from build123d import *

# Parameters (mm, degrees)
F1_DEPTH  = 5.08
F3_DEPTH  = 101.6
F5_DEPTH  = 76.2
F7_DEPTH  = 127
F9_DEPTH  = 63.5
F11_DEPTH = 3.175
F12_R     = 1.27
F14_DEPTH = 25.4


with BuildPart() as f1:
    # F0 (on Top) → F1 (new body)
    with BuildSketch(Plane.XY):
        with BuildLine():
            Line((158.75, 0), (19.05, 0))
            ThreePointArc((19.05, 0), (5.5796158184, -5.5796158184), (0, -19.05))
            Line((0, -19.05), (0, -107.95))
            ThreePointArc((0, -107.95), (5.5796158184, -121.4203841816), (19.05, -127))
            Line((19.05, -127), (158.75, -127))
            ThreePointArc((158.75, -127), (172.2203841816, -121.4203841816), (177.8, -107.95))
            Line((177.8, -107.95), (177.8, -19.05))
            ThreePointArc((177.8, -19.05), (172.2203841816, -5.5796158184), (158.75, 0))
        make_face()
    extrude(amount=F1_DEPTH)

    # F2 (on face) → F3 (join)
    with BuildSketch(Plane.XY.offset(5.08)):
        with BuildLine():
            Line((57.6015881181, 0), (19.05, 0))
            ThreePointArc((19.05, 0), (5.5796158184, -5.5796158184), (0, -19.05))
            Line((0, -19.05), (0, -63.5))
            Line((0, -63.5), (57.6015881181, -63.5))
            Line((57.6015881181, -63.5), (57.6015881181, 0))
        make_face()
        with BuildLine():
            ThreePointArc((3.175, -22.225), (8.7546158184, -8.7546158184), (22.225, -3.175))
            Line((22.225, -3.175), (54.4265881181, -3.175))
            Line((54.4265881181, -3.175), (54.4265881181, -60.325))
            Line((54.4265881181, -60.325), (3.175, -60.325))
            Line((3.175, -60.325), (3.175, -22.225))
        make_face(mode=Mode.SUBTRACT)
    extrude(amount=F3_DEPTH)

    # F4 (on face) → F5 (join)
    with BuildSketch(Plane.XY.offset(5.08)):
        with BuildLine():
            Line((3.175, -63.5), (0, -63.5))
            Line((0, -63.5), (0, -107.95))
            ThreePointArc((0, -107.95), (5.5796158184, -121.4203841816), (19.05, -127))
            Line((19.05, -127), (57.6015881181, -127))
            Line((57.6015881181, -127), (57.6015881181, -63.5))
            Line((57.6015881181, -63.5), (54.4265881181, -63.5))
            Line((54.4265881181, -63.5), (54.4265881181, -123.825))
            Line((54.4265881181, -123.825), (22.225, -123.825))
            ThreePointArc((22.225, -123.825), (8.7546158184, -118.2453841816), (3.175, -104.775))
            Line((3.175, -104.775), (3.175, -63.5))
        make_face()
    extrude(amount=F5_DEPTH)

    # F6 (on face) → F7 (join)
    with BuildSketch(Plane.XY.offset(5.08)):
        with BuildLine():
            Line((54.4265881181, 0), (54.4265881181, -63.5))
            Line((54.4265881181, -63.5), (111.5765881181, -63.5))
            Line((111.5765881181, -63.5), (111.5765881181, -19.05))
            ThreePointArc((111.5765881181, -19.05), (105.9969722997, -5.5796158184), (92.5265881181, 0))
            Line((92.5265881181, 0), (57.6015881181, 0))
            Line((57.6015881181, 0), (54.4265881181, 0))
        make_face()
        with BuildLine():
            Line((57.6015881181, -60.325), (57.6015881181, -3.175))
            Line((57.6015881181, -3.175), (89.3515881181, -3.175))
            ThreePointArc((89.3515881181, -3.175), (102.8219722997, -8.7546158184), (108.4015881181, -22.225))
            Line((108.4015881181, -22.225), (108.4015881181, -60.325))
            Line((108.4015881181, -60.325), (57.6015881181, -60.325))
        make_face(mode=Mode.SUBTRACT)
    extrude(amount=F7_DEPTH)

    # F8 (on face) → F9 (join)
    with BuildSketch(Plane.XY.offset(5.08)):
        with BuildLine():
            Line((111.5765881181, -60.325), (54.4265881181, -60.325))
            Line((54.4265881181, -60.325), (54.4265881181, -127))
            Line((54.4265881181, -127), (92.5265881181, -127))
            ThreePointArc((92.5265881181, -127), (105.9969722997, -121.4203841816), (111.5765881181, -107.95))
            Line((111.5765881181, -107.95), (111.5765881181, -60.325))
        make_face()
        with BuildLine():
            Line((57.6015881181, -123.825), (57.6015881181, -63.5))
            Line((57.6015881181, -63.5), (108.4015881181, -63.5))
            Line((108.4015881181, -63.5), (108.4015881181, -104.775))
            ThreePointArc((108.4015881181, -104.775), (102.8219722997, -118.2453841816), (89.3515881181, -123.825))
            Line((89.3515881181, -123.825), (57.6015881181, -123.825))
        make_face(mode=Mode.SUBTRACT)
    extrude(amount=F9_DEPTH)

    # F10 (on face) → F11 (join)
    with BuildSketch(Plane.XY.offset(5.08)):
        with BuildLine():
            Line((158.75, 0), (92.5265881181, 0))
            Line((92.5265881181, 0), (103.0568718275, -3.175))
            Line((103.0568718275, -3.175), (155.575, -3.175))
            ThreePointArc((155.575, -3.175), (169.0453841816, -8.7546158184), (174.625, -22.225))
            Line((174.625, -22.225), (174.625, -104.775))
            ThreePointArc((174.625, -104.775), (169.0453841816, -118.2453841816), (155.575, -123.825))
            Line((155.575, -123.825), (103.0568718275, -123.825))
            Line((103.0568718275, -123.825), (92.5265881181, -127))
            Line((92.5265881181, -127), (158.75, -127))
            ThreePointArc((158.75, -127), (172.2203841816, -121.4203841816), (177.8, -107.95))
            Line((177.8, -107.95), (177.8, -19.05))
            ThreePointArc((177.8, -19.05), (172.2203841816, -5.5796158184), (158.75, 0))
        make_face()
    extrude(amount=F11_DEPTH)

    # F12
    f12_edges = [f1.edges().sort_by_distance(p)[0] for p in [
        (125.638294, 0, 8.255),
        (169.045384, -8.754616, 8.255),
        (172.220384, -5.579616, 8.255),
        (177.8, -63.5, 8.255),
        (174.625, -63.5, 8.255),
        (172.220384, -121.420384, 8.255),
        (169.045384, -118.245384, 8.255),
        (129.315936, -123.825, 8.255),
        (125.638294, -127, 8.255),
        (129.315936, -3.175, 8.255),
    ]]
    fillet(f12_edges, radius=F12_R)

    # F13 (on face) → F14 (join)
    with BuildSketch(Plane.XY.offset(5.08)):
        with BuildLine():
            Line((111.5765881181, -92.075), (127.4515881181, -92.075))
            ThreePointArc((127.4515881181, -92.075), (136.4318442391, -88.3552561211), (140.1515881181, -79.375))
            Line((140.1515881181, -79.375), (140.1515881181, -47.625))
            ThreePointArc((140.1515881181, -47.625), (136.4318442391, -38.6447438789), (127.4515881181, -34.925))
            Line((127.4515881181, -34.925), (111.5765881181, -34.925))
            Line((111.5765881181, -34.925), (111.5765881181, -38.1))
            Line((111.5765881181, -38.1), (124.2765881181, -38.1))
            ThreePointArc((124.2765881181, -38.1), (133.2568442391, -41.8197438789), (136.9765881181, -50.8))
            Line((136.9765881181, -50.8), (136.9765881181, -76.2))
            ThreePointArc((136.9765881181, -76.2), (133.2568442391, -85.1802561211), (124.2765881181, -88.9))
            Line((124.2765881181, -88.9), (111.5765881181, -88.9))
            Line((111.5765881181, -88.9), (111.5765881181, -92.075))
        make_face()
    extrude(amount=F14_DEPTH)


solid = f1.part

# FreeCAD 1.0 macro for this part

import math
import FreeCAD as App
import Part
import Sketcher

V = App.Vector
Q = App.Units.Quantity


def edges_at(feature, points):
    """Names of the edges that pass closest to the given points."""
    edges = feature.Shape.Edges
    near = lambda p: min(range(len(edges)), key=lambda i: edges[i].distToShape(Part.Vertex(*p))[0])
    return sorted({f"Edge{near(p) + 1}" for p in points})

doc = App.newDocument("Part")
body = doc.addObject("PartDesign::Body", "Body")

# Sketch on XY plane
sketch1 = body.newObject("Sketcher::SketchObject", "Sketch")
sketch1.AttachmentSupport = (doc.getObject("XY_Plane"), [""])
sketch1.MapMode = "FlatFace"
sketch1.addGeometry([
    Part.LineSegment(V(158.75, 0, 0), V(19.05, 0, 0)),  # 0
    Part.ArcOfCircle(Part.Circle(V(19.05, -19.05, 0), V(0, 0, 1), 19.05), math.radians(90), math.radians(180)),  # 1
    Part.LineSegment(V(0, -19.05, 0), V(0, -107.95, 0)),  # 2
    Part.ArcOfCircle(Part.Circle(V(19.05, -107.95, 0), V(0, 0, 1), 19.05), math.radians(180), math.radians(270)),  # 3
    Part.LineSegment(V(19.05, -127, 0), V(158.75, -127, 0)),  # 4
    Part.ArcOfCircle(Part.Circle(V(158.75, -107.95, 0), V(0, 0, 1), 19.05), math.radians(-90), math.radians(0)),  # 5
    Part.LineSegment(V(177.8, -107.95, 0), V(177.8, -19.05, 0)),  # 6
    Part.ArcOfCircle(Part.Circle(V(158.75, -19.05, 0), V(0, 0, 1), 19.05), math.radians(0), math.radians(90)),  # 7
], False)
sketch1.addConstraint([
    Sketcher.Constraint("Tangent", 0, 2, 1, 1),
    Sketcher.Constraint("Tangent", 1, 2, 2, 1),
    Sketcher.Constraint("Tangent", 2, 2, 3, 1),
    Sketcher.Constraint("Tangent", 3, 2, 4, 1),
    Sketcher.Constraint("Tangent", 4, 2, 5, 1),
    Sketcher.Constraint("Tangent", 5, 2, 6, 1),
    Sketcher.Constraint("Tangent", 6, 2, 7, 1),
    Sketcher.Constraint("Tangent", 7, 2, 0, 1),
    Sketcher.Constraint("Horizontal", 0),
    Sketcher.Constraint("Vertical", 2),
    Sketcher.Constraint("Horizontal", 4),
    Sketcher.Constraint("Vertical", 6),
    Sketcher.Constraint("Equal", 1, 3),
    Sketcher.Constraint("Equal", 3, 5),
    Sketcher.Constraint("Equal", 5, 7),
    Sketcher.Constraint("PointOnObject", 0, 2, -1),
    Sketcher.Constraint("PointOnObject", 1, 2, -2),
    Sketcher.Constraint("Radius", 1, Q("0.75 in")),
    Sketcher.Constraint("DistanceX", 0, 2, 0, 1, Q("5.5 in")),
    Sketcher.Constraint("DistanceY", 2, 2, 2, 1, Q("3.5 in")),
])
pad1 = body.newObject("PartDesign::Pad", "Pad")
pad1.Profile = sketch1
pad1.Length = Q("0.2 in")

# Sketch on XY plane
sketch2 = body.newObject("Sketcher::SketchObject", "Sketch001")
sketch2.AttachmentSupport = (doc.getObject("XY_Plane"), [""])
sketch2.MapMode = "FlatFace"
sketch2.AttachmentOffset = App.Placement(V(0, 0, 0.2 * 25.4), App.Rotation())
sketch2.addGeometry([
    Part.LineSegment(V(57.601588, 0, 0), V(19.05, 0, 0)),  # 0
    Part.ArcOfCircle(Part.Circle(V(19.05, -19.05, 0), V(0, 0, 1), 19.05), math.radians(90), math.radians(180)),  # 1
    Part.LineSegment(V(0, -19.05, 0), V(0, -63.5, 0)),  # 2
    Part.LineSegment(V(0, -63.5, 0), V(57.601588, -63.5, 0)),  # 3
    Part.LineSegment(V(57.601588, -63.5, 0), V(57.601588, 0, 0)),  # 4
    Part.LineSegment(V(3.175, -60.325, 0), V(3.175, -22.225, 0)),  # 5
    Part.ArcOfCircle(Part.Circle(V(22.225, -22.225, 0), V(0, 0, 1), 19.05), math.radians(90), math.radians(180)),  # 6
    Part.LineSegment(V(22.225, -3.175, 0), V(54.426588, -3.175, 0)),  # 7
    Part.LineSegment(V(54.426588, -3.175, 0), V(54.426588, -60.325, 0)),  # 8
    Part.LineSegment(V(54.426588, -60.325, 0), V(3.175, -60.325, 0)),  # 9
], False)
sketch2.addConstraint([
    Sketcher.Constraint("Tangent", 0, 2, 1, 1),
    Sketcher.Constraint("Tangent", 1, 2, 2, 1),
    Sketcher.Constraint("Coincident", 2, 2, 3, 1),
    Sketcher.Constraint("Coincident", 3, 2, 4, 1),
    Sketcher.Constraint("Coincident", 4, 2, 0, 1),
    Sketcher.Constraint("Tangent", 5, 2, 6, 2),
    Sketcher.Constraint("Tangent", 6, 1, 7, 1),
    Sketcher.Constraint("Coincident", 7, 2, 8, 1),
    Sketcher.Constraint("Coincident", 8, 2, 9, 1),
    Sketcher.Constraint("Coincident", 9, 2, 5, 1),
    Sketcher.Constraint("Horizontal", 0),
    Sketcher.Constraint("Vertical", 2),
    Sketcher.Constraint("Horizontal", 3),
    Sketcher.Constraint("Vertical", 4),
    Sketcher.Constraint("Vertical", 5),
    Sketcher.Constraint("Horizontal", 7),
    Sketcher.Constraint("Vertical", 8),
    Sketcher.Constraint("Horizontal", 9),
    Sketcher.Constraint("Equal", 1, 6),
    Sketcher.Constraint("PointOnObject", 0, 2, -1),
    Sketcher.Constraint("PointOnObject", 1, 2, -2),
    Sketcher.Constraint("Radius", 1, Q("0.75 in")),
    Sketcher.Constraint("DistanceY", 4, 1, 4, 2, Q("2.5 in")),
    Sketcher.Constraint("DistanceY", 5, 1, 5, 2, Q("1.5 in")),
    Sketcher.Constraint("DistanceX", -1, 1, 6, 3, Q("0.875 in")),
    Sketcher.Constraint("DistanceY", 6, 3, -1, 1, Q("0.875 in")),
    Sketcher.Constraint("DistanceX", 7, 2, 4, 2, Q("0.125 in")),
    Sketcher.Constraint("DistanceX", 0, 2, 0, 1, Q("38.551588 mm")),
])
pad2 = body.newObject("PartDesign::Pad", "Pad001")
pad2.Profile = sketch2
pad2.Length = Q("4 in")

# Sketch on XY plane
sketch3 = body.newObject("Sketcher::SketchObject", "Sketch002")
sketch3.AttachmentSupport = (doc.getObject("XY_Plane"), [""])
sketch3.MapMode = "FlatFace"
sketch3.AttachmentOffset = App.Placement(V(0, 0, 0.2 * 25.4), App.Rotation())
sketch3.addGeometry([
    Part.LineSegment(V(3.175, -63.5, 0), V(0, -63.5, 0)),  # 0
    Part.LineSegment(V(0, -63.5, 0), V(0, -107.95, 0)),  # 1
    Part.ArcOfCircle(Part.Circle(V(19.05, -107.95, 0), V(0, 0, 1), 19.05), math.radians(180), math.radians(270)),  # 2
    Part.LineSegment(V(19.05, -127, 0), V(57.601588, -127, 0)),  # 3
    Part.LineSegment(V(57.601588, -127, 0), V(57.601588, -63.5, 0)),  # 4
    Part.LineSegment(V(57.601588, -63.5, 0), V(54.426588, -63.5, 0)),  # 5
    Part.LineSegment(V(54.426588, -63.5, 0), V(54.426588, -123.825, 0)),  # 6
    Part.LineSegment(V(54.426588, -123.825, 0), V(22.225, -123.825, 0)),  # 7
    Part.ArcOfCircle(Part.Circle(V(22.225, -104.775, 0), V(0, 0, 1), 19.05), math.radians(180), math.radians(270)),  # 8
    Part.LineSegment(V(3.175, -104.775, 0), V(3.175, -63.5, 0)),  # 9
], False)
sketch3.addConstraint([
    Sketcher.Constraint("Coincident", 0, 2, 1, 1),
    Sketcher.Constraint("Tangent", 1, 2, 2, 1),
    Sketcher.Constraint("Tangent", 2, 2, 3, 1),
    Sketcher.Constraint("Coincident", 3, 2, 4, 1),
    Sketcher.Constraint("Coincident", 4, 2, 5, 1),
    Sketcher.Constraint("Coincident", 5, 2, 6, 1),
    Sketcher.Constraint("Coincident", 6, 2, 7, 1),
    Sketcher.Constraint("Tangent", 7, 2, 8, 2),
    Sketcher.Constraint("Tangent", 8, 1, 9, 1),
    Sketcher.Constraint("Coincident", 9, 2, 0, 1),
    Sketcher.Constraint("Horizontal", 0),
    Sketcher.Constraint("Vertical", 1),
    Sketcher.Constraint("Horizontal", 3),
    Sketcher.Constraint("Vertical", 4),
    Sketcher.Constraint("Horizontal", 5),
    Sketcher.Constraint("Vertical", 6),
    Sketcher.Constraint("Horizontal", 7),
    Sketcher.Constraint("Vertical", 9),
    Sketcher.Constraint("Equal", 2, 8),
    Sketcher.Constraint("PointOnObject", 0, 2, -2),
    Sketcher.Constraint("Horizontal", 0, 2, 4, 2),
    Sketcher.Constraint("Equal", 0, 5),
    Sketcher.Constraint("Radius", 2, Q("0.75 in")),
    Sketcher.Constraint("DistanceY", 4, 1, 4, 2, Q("2.5 in")),
    Sketcher.Constraint("DistanceY", 2, 2, -1, 1, Q("5 in")),
    Sketcher.Constraint("DistanceX", 0, 2, 0, 1, Q("0.125 in")),
    Sketcher.Constraint("DistanceY", 6, 2, 6, 1, Q("2.375 in")),
    Sketcher.Constraint("DistanceX", 3, 1, 3, 2, Q("38.551588 mm")),
])
pad3 = body.newObject("PartDesign::Pad", "Pad002")
pad3.Profile = sketch3
pad3.Length = Q("3 in")

# Sketch on XY plane
sketch4 = body.newObject("Sketcher::SketchObject", "Sketch003")
sketch4.AttachmentSupport = (doc.getObject("XY_Plane"), [""])
sketch4.MapMode = "FlatFace"
sketch4.AttachmentOffset = App.Placement(V(0, 0, 0.2 * 25.4), App.Rotation())
sketch4.addGeometry([
    Part.LineSegment(V(54.426588, 0, 0), V(54.426588, -63.5, 0)),  # 0
    Part.LineSegment(V(54.426588, -63.5, 0), V(111.576588, -63.5, 0)),  # 1
    Part.LineSegment(V(111.576588, -63.5, 0), V(111.576588, -19.05, 0)),  # 2
    Part.ArcOfCircle(Part.Circle(V(92.526588, -19.05, 0), V(0, 0, 1), 19.05), math.radians(0), math.radians(90)),  # 3
    Part.LineSegment(V(92.526588, 0, 0), V(54.426588, 0, 0)),  # 4
    Part.LineSegment(V(108.401588, -60.325, 0), V(57.601588, -60.325, 0)),  # 5
    Part.LineSegment(V(57.601588, -60.325, 0), V(57.601588, -3.175, 0)),  # 6
    Part.LineSegment(V(57.601588, -3.175, 0), V(89.351588, -3.175, 0)),  # 7
    Part.ArcOfCircle(Part.Circle(V(89.351588, -22.225, 0), V(0, 0, 1), 19.05), math.radians(0), math.radians(90)),  # 8
    Part.LineSegment(V(108.401588, -22.225, 0), V(108.401588, -60.325, 0)),  # 9
], False)
sketch4.addConstraint([
    Sketcher.Constraint("Coincident", 0, 2, 1, 1),
    Sketcher.Constraint("Coincident", 1, 2, 2, 1),
    Sketcher.Constraint("Tangent", 2, 2, 3, 1),
    Sketcher.Constraint("Tangent", 3, 2, 4, 1),
    Sketcher.Constraint("Coincident", 4, 2, 0, 1),
    Sketcher.Constraint("Coincident", 5, 2, 6, 1),
    Sketcher.Constraint("Coincident", 6, 2, 7, 1),
    Sketcher.Constraint("Tangent", 7, 2, 8, 2),
    Sketcher.Constraint("Tangent", 8, 1, 9, 1),
    Sketcher.Constraint("Coincident", 9, 2, 5, 1),
    Sketcher.Constraint("Vertical", 0),
    Sketcher.Constraint("Horizontal", 1),
    Sketcher.Constraint("Vertical", 2),
    Sketcher.Constraint("Horizontal", 4),
    Sketcher.Constraint("Horizontal", 5),
    Sketcher.Constraint("Vertical", 6),
    Sketcher.Constraint("Horizontal", 7),
    Sketcher.Constraint("Vertical", 9),
    Sketcher.Constraint("Equal", 3, 8),
    Sketcher.Constraint("PointOnObject", 3, 2, -1),
    Sketcher.Constraint("Equal", 1, 6),
    Sketcher.Constraint("DistanceX", 5, 2, 5, 1, Q("2 in")),
    Sketcher.Constraint("Radius", 3, Q("0.75 in")),
    Sketcher.Constraint("DistanceX", 4, 2, 4, 1, Q("1.5 in")),
    Sketcher.Constraint("DistanceY", 0, 2, 0, 1, Q("2.5 in")),
    Sketcher.Constraint("DistanceY", 8, 3, -1, 1, Q("0.875 in")),
    Sketcher.Constraint("DistanceX", 8, 3, 3, 3, Q("0.125 in")),
    Sketcher.Constraint("DistanceX", -1, 1, 3, 3, Q("92.526588 mm")),
])
pad4 = body.newObject("PartDesign::Pad", "Pad003")
pad4.Profile = sketch4
pad4.Length = Q("5 in")

# Sketch on XY plane
sketch5 = body.newObject("Sketcher::SketchObject", "Sketch004")
sketch5.AttachmentSupport = (doc.getObject("XY_Plane"), [""])
sketch5.MapMode = "FlatFace"
sketch5.AttachmentOffset = App.Placement(V(0, 0, 0.2 * 25.4), App.Rotation())
sketch5.addGeometry([
    Part.LineSegment(V(111.576588, -60.325, 0), V(54.426588, -60.325, 0)),  # 0
    Part.LineSegment(V(54.426588, -60.325, 0), V(54.426588, -127, 0)),  # 1
    Part.LineSegment(V(54.426588, -127, 0), V(92.526588, -127, 0)),  # 2
    Part.ArcOfCircle(Part.Circle(V(92.526588, -107.95, 0), V(0, 0, 1), 19.05), math.radians(-90), math.radians(0)),  # 3
    Part.LineSegment(V(111.576588, -107.95, 0), V(111.576588, -60.325, 0)),  # 4
    Part.LineSegment(V(89.351588, -123.825, 0), V(57.601588, -123.825, 0)),  # 5
    Part.LineSegment(V(57.601588, -123.825, 0), V(57.601588, -63.5, 0)),  # 6
    Part.LineSegment(V(57.601588, -63.5, 0), V(108.401588, -63.5, 0)),  # 7
    Part.LineSegment(V(108.401588, -63.5, 0), V(108.401588, -104.775, 0)),  # 8
    Part.ArcOfCircle(Part.Circle(V(89.351588, -104.775, 0), V(0, 0, 1), 19.05), math.radians(-90), math.radians(0)),  # 9
], False)
sketch5.addConstraint([
    Sketcher.Constraint("Coincident", 0, 2, 1, 1),
    Sketcher.Constraint("Coincident", 1, 2, 2, 1),
    Sketcher.Constraint("Tangent", 2, 2, 3, 1),
    Sketcher.Constraint("Tangent", 3, 2, 4, 1),
    Sketcher.Constraint("Coincident", 4, 2, 0, 1),
    Sketcher.Constraint("Coincident", 5, 2, 6, 1),
    Sketcher.Constraint("Coincident", 6, 2, 7, 1),
    Sketcher.Constraint("Coincident", 7, 2, 8, 1),
    Sketcher.Constraint("Tangent", 8, 2, 9, 2),
    Sketcher.Constraint("Tangent", 9, 1, 5, 1),
    Sketcher.Constraint("Horizontal", 0),
    Sketcher.Constraint("Vertical", 1),
    Sketcher.Constraint("Horizontal", 2),
    Sketcher.Constraint("Vertical", 4),
    Sketcher.Constraint("Horizontal", 5),
    Sketcher.Constraint("Vertical", 6),
    Sketcher.Constraint("Horizontal", 7),
    Sketcher.Constraint("Vertical", 8),
    Sketcher.Constraint("Equal", 3, 9),
    Sketcher.Constraint("DistanceX", 7, 1, 7, 2, Q("2 in")),
    Sketcher.Constraint("Radius", 3, Q("0.75 in")),
    Sketcher.Constraint("DistanceX", 2, 1, 2, 2, Q("1.5 in")),
    Sketcher.Constraint("DistanceY", 1, 2, -1, 1, Q("5 in")),
    Sketcher.Constraint("DistanceY", 6, 2, -1, 1, Q("2.5 in")),
    Sketcher.Constraint("DistanceY", 1, 2, 1, 1, Q("2.625 in")),
    Sketcher.Constraint("DistanceY", 6, 1, 6, 2, Q("2.375 in")),
    Sketcher.Constraint("DistanceX", 9, 3, 3, 3, Q("0.125 in")),
    Sketcher.Constraint("DistanceX", -1, 1, 3, 3, Q("92.526588 mm")),
])
pad5 = body.newObject("PartDesign::Pad", "Pad004")
pad5.Profile = sketch5
pad5.Length = Q("2.5 in")

# Sketch on XY plane
sketch6 = body.newObject("Sketcher::SketchObject", "Sketch005")
sketch6.AttachmentSupport = (doc.getObject("XY_Plane"), [""])
sketch6.MapMode = "FlatFace"
sketch6.AttachmentOffset = App.Placement(V(0, 0, 0.2 * 25.4), App.Rotation())
sketch6.addGeometry([
    Part.LineSegment(V(158.75, 0, 0), V(92.526588, 0, 0)),  # 0
    Part.LineSegment(V(92.526588, 0, 0), V(103.056872, -3.175, 0)),  # 1
    Part.LineSegment(V(103.056872, -3.175, 0), V(155.575, -3.175, 0)),  # 2
    Part.ArcOfCircle(Part.Circle(V(155.575, -22.225, 0), V(0, 0, 1), 19.05), math.radians(0), math.radians(90)),  # 3
    Part.LineSegment(V(174.625, -22.225, 0), V(174.625, -104.775, 0)),  # 4
    Part.ArcOfCircle(Part.Circle(V(155.575, -104.775, 0), V(0, 0, 1), 19.05), math.radians(-90), math.radians(0)),  # 5
    Part.LineSegment(V(155.575, -123.825, 0), V(103.056872, -123.825, 0)),  # 6
    Part.LineSegment(V(103.056872, -123.825, 0), V(92.526588, -127, 0)),  # 7
    Part.LineSegment(V(92.526588, -127, 0), V(158.75, -127, 0)),  # 8
    Part.ArcOfCircle(Part.Circle(V(158.75, -107.95, 0), V(0, 0, 1), 19.05), math.radians(-90), math.radians(0)),  # 9
    Part.LineSegment(V(177.8, -107.95, 0), V(177.8, -19.05, 0)),  # 10
    Part.ArcOfCircle(Part.Circle(V(158.75, -19.05, 0), V(0, 0, 1), 19.05), math.radians(0), math.radians(90)),  # 11
], False)
sketch6.addConstraint([
    Sketcher.Constraint("Coincident", 0, 2, 1, 1),
    Sketcher.Constraint("Coincident", 1, 2, 2, 1),
    Sketcher.Constraint("Tangent", 2, 2, 3, 2),
    Sketcher.Constraint("Tangent", 3, 1, 4, 1),
    Sketcher.Constraint("Tangent", 4, 2, 5, 2),
    Sketcher.Constraint("Tangent", 5, 1, 6, 1),
    Sketcher.Constraint("Coincident", 6, 2, 7, 1),
    Sketcher.Constraint("Coincident", 7, 2, 8, 1),
    Sketcher.Constraint("Tangent", 8, 2, 9, 1),
    Sketcher.Constraint("Tangent", 9, 2, 10, 1),
    Sketcher.Constraint("Tangent", 10, 2, 11, 1),
    Sketcher.Constraint("Tangent", 11, 2, 0, 1),
    Sketcher.Constraint("Horizontal", 0),
    Sketcher.Constraint("Horizontal", 2),
    Sketcher.Constraint("Vertical", 4),
    Sketcher.Constraint("Horizontal", 6),
    Sketcher.Constraint("Horizontal", 8),
    Sketcher.Constraint("Vertical", 10),
    Sketcher.Constraint("Equal", 3, 5),
    Sketcher.Constraint("Equal", 5, 9),
    Sketcher.Constraint("Equal", 9, 11),
    Sketcher.Constraint("PointOnObject", 0, 2, -1),
    Sketcher.Constraint("Vertical", 1, 2, 6, 2),
    Sketcher.Constraint("Vertical", 0, 2, 7, 2),
    Sketcher.Constraint("Equal", 1, 7),
    Sketcher.Constraint("Radius", 3, Q("0.75 in")),
    Sketcher.Constraint("DistanceY", 10, 1, 10, 2, Q("3.5 in")),
    Sketcher.Constraint("DistanceX", -1, 1, 9, 2, Q("7 in")),
    Sketcher.Constraint("DistanceY", 5, 3, 1, 2, Q("4 in")),
    Sketcher.Constraint("DistanceX", -1, 1, 3, 3, Q("6.125 in")),
    Sketcher.Constraint("DistanceX", 0, 2, 0, 1, Q("66.223412 mm")),
    Sketcher.Constraint("DistanceX", 2, 1, 2, 2, Q("52.518128 mm")),
])
pad6 = body.newObject("PartDesign::Pad", "Pad005")
pad6.Profile = sketch6
pad6.Length = Q("0.125 in")
doc.recompute()

fillet = body.newObject("PartDesign::Fillet", "Fillet")
fillet.Base = (pad6, edges_at(pad6, [
    (125.638, 0, 8.255),
    (169.045, -8.755, 8.255),
    (172.22, -5.58, 8.255),
    (177.8, -63.5, 8.255),
    (174.625, -63.5, 8.255),
    (172.22, -121.42, 8.255),
    (169.045, -118.245, 8.255),
    (129.316, -123.825, 8.255),
    (125.638, -127, 8.255),
    (129.316, -3.175, 8.255),
]))
fillet.Radius = Q("0.05 in")

# Sketch on XY plane
sketch7 = body.newObject("Sketcher::SketchObject", "Sketch006")
sketch7.AttachmentSupport = (doc.getObject("XY_Plane"), [""])
sketch7.MapMode = "FlatFace"
sketch7.AttachmentOffset = App.Placement(V(0, 0, 0.2 * 25.4), App.Rotation())
sketch7.addGeometry([
    Part.LineSegment(V(111.576588, -92.075, 0), V(127.451588, -92.075, 0)),  # 0
    Part.ArcOfCircle(Part.Circle(V(127.451588, -79.375, 0), V(0, 0, 1), 12.7), math.radians(-90), math.radians(0)),  # 1
    Part.LineSegment(V(140.151588, -79.375, 0), V(140.151588, -47.625, 0)),  # 2
    Part.ArcOfCircle(Part.Circle(V(127.451588, -47.625, 0), V(0, 0, 1), 12.7), math.radians(0), math.radians(90)),  # 3
    Part.LineSegment(V(127.451588, -34.925, 0), V(111.576588, -34.925, 0)),  # 4
    Part.LineSegment(V(111.576588, -34.925, 0), V(111.576588, -38.1, 0)),  # 5
    Part.LineSegment(V(111.576588, -38.1, 0), V(124.276588, -38.1, 0)),  # 6
    Part.ArcOfCircle(Part.Circle(V(124.276588, -50.8, 0), V(0, 0, 1), 12.7), math.radians(0), math.radians(90)),  # 7
    Part.LineSegment(V(136.976588, -50.8, 0), V(136.976588, -76.2, 0)),  # 8
    Part.ArcOfCircle(Part.Circle(V(124.276588, -76.2, 0), V(0, 0, 1), 12.7), math.radians(-90), math.radians(0)),  # 9
    Part.LineSegment(V(124.276588, -88.9, 0), V(111.576588, -88.9, 0)),  # 10
    Part.LineSegment(V(111.576588, -88.9, 0), V(111.576588, -92.075, 0)),  # 11
], False)
sketch7.addConstraint([
    Sketcher.Constraint("Tangent", 0, 2, 1, 1),
    Sketcher.Constraint("Tangent", 1, 2, 2, 1),
    Sketcher.Constraint("Tangent", 2, 2, 3, 1),
    Sketcher.Constraint("Tangent", 3, 2, 4, 1),
    Sketcher.Constraint("Coincident", 4, 2, 5, 1),
    Sketcher.Constraint("Coincident", 5, 2, 6, 1),
    Sketcher.Constraint("Tangent", 6, 2, 7, 2),
    Sketcher.Constraint("Tangent", 7, 1, 8, 1),
    Sketcher.Constraint("Tangent", 8, 2, 9, 2),
    Sketcher.Constraint("Tangent", 9, 1, 10, 1),
    Sketcher.Constraint("Coincident", 10, 2, 11, 1),
    Sketcher.Constraint("Coincident", 11, 2, 0, 1),
    Sketcher.Constraint("Horizontal", 0),
    Sketcher.Constraint("Vertical", 2),
    Sketcher.Constraint("Horizontal", 4),
    Sketcher.Constraint("Vertical", 5),
    Sketcher.Constraint("Horizontal", 6),
    Sketcher.Constraint("Vertical", 8),
    Sketcher.Constraint("Horizontal", 10),
    Sketcher.Constraint("Vertical", 11),
    Sketcher.Constraint("Equal", 1, 3),
    Sketcher.Constraint("Equal", 3, 7),
    Sketcher.Constraint("Equal", 7, 9),
    Sketcher.Constraint("Vertical", 5, 2, 10, 2),
    Sketcher.Constraint("Equal", 5, 11),
    Sketcher.Constraint("Radius", 1, Q("0.5 in")),
    Sketcher.Constraint("DistanceY", 8, 2, 8, 1, Q("1 in")),
    Sketcher.Constraint("DistanceX", 6, 1, 6, 2, Q("0.5 in")),
    Sketcher.Constraint("DistanceY", 7, 3, -1, 1, Q("2 in")),
    Sketcher.Constraint("DistanceY", 2, 1, 2, 2, Q("1.25 in")),
    Sketcher.Constraint("DistanceX", 0, 1, 0, 2, Q("0.625 in")),
    Sketcher.Constraint("DistanceX", -1, 1, 1, 3, Q("127.451588 mm")),
])
pad7 = body.newObject("PartDesign::Pad", "Pad006")
pad7.Profile = sketch7
pad7.Length = Q("1 in")

doc.recompute()
